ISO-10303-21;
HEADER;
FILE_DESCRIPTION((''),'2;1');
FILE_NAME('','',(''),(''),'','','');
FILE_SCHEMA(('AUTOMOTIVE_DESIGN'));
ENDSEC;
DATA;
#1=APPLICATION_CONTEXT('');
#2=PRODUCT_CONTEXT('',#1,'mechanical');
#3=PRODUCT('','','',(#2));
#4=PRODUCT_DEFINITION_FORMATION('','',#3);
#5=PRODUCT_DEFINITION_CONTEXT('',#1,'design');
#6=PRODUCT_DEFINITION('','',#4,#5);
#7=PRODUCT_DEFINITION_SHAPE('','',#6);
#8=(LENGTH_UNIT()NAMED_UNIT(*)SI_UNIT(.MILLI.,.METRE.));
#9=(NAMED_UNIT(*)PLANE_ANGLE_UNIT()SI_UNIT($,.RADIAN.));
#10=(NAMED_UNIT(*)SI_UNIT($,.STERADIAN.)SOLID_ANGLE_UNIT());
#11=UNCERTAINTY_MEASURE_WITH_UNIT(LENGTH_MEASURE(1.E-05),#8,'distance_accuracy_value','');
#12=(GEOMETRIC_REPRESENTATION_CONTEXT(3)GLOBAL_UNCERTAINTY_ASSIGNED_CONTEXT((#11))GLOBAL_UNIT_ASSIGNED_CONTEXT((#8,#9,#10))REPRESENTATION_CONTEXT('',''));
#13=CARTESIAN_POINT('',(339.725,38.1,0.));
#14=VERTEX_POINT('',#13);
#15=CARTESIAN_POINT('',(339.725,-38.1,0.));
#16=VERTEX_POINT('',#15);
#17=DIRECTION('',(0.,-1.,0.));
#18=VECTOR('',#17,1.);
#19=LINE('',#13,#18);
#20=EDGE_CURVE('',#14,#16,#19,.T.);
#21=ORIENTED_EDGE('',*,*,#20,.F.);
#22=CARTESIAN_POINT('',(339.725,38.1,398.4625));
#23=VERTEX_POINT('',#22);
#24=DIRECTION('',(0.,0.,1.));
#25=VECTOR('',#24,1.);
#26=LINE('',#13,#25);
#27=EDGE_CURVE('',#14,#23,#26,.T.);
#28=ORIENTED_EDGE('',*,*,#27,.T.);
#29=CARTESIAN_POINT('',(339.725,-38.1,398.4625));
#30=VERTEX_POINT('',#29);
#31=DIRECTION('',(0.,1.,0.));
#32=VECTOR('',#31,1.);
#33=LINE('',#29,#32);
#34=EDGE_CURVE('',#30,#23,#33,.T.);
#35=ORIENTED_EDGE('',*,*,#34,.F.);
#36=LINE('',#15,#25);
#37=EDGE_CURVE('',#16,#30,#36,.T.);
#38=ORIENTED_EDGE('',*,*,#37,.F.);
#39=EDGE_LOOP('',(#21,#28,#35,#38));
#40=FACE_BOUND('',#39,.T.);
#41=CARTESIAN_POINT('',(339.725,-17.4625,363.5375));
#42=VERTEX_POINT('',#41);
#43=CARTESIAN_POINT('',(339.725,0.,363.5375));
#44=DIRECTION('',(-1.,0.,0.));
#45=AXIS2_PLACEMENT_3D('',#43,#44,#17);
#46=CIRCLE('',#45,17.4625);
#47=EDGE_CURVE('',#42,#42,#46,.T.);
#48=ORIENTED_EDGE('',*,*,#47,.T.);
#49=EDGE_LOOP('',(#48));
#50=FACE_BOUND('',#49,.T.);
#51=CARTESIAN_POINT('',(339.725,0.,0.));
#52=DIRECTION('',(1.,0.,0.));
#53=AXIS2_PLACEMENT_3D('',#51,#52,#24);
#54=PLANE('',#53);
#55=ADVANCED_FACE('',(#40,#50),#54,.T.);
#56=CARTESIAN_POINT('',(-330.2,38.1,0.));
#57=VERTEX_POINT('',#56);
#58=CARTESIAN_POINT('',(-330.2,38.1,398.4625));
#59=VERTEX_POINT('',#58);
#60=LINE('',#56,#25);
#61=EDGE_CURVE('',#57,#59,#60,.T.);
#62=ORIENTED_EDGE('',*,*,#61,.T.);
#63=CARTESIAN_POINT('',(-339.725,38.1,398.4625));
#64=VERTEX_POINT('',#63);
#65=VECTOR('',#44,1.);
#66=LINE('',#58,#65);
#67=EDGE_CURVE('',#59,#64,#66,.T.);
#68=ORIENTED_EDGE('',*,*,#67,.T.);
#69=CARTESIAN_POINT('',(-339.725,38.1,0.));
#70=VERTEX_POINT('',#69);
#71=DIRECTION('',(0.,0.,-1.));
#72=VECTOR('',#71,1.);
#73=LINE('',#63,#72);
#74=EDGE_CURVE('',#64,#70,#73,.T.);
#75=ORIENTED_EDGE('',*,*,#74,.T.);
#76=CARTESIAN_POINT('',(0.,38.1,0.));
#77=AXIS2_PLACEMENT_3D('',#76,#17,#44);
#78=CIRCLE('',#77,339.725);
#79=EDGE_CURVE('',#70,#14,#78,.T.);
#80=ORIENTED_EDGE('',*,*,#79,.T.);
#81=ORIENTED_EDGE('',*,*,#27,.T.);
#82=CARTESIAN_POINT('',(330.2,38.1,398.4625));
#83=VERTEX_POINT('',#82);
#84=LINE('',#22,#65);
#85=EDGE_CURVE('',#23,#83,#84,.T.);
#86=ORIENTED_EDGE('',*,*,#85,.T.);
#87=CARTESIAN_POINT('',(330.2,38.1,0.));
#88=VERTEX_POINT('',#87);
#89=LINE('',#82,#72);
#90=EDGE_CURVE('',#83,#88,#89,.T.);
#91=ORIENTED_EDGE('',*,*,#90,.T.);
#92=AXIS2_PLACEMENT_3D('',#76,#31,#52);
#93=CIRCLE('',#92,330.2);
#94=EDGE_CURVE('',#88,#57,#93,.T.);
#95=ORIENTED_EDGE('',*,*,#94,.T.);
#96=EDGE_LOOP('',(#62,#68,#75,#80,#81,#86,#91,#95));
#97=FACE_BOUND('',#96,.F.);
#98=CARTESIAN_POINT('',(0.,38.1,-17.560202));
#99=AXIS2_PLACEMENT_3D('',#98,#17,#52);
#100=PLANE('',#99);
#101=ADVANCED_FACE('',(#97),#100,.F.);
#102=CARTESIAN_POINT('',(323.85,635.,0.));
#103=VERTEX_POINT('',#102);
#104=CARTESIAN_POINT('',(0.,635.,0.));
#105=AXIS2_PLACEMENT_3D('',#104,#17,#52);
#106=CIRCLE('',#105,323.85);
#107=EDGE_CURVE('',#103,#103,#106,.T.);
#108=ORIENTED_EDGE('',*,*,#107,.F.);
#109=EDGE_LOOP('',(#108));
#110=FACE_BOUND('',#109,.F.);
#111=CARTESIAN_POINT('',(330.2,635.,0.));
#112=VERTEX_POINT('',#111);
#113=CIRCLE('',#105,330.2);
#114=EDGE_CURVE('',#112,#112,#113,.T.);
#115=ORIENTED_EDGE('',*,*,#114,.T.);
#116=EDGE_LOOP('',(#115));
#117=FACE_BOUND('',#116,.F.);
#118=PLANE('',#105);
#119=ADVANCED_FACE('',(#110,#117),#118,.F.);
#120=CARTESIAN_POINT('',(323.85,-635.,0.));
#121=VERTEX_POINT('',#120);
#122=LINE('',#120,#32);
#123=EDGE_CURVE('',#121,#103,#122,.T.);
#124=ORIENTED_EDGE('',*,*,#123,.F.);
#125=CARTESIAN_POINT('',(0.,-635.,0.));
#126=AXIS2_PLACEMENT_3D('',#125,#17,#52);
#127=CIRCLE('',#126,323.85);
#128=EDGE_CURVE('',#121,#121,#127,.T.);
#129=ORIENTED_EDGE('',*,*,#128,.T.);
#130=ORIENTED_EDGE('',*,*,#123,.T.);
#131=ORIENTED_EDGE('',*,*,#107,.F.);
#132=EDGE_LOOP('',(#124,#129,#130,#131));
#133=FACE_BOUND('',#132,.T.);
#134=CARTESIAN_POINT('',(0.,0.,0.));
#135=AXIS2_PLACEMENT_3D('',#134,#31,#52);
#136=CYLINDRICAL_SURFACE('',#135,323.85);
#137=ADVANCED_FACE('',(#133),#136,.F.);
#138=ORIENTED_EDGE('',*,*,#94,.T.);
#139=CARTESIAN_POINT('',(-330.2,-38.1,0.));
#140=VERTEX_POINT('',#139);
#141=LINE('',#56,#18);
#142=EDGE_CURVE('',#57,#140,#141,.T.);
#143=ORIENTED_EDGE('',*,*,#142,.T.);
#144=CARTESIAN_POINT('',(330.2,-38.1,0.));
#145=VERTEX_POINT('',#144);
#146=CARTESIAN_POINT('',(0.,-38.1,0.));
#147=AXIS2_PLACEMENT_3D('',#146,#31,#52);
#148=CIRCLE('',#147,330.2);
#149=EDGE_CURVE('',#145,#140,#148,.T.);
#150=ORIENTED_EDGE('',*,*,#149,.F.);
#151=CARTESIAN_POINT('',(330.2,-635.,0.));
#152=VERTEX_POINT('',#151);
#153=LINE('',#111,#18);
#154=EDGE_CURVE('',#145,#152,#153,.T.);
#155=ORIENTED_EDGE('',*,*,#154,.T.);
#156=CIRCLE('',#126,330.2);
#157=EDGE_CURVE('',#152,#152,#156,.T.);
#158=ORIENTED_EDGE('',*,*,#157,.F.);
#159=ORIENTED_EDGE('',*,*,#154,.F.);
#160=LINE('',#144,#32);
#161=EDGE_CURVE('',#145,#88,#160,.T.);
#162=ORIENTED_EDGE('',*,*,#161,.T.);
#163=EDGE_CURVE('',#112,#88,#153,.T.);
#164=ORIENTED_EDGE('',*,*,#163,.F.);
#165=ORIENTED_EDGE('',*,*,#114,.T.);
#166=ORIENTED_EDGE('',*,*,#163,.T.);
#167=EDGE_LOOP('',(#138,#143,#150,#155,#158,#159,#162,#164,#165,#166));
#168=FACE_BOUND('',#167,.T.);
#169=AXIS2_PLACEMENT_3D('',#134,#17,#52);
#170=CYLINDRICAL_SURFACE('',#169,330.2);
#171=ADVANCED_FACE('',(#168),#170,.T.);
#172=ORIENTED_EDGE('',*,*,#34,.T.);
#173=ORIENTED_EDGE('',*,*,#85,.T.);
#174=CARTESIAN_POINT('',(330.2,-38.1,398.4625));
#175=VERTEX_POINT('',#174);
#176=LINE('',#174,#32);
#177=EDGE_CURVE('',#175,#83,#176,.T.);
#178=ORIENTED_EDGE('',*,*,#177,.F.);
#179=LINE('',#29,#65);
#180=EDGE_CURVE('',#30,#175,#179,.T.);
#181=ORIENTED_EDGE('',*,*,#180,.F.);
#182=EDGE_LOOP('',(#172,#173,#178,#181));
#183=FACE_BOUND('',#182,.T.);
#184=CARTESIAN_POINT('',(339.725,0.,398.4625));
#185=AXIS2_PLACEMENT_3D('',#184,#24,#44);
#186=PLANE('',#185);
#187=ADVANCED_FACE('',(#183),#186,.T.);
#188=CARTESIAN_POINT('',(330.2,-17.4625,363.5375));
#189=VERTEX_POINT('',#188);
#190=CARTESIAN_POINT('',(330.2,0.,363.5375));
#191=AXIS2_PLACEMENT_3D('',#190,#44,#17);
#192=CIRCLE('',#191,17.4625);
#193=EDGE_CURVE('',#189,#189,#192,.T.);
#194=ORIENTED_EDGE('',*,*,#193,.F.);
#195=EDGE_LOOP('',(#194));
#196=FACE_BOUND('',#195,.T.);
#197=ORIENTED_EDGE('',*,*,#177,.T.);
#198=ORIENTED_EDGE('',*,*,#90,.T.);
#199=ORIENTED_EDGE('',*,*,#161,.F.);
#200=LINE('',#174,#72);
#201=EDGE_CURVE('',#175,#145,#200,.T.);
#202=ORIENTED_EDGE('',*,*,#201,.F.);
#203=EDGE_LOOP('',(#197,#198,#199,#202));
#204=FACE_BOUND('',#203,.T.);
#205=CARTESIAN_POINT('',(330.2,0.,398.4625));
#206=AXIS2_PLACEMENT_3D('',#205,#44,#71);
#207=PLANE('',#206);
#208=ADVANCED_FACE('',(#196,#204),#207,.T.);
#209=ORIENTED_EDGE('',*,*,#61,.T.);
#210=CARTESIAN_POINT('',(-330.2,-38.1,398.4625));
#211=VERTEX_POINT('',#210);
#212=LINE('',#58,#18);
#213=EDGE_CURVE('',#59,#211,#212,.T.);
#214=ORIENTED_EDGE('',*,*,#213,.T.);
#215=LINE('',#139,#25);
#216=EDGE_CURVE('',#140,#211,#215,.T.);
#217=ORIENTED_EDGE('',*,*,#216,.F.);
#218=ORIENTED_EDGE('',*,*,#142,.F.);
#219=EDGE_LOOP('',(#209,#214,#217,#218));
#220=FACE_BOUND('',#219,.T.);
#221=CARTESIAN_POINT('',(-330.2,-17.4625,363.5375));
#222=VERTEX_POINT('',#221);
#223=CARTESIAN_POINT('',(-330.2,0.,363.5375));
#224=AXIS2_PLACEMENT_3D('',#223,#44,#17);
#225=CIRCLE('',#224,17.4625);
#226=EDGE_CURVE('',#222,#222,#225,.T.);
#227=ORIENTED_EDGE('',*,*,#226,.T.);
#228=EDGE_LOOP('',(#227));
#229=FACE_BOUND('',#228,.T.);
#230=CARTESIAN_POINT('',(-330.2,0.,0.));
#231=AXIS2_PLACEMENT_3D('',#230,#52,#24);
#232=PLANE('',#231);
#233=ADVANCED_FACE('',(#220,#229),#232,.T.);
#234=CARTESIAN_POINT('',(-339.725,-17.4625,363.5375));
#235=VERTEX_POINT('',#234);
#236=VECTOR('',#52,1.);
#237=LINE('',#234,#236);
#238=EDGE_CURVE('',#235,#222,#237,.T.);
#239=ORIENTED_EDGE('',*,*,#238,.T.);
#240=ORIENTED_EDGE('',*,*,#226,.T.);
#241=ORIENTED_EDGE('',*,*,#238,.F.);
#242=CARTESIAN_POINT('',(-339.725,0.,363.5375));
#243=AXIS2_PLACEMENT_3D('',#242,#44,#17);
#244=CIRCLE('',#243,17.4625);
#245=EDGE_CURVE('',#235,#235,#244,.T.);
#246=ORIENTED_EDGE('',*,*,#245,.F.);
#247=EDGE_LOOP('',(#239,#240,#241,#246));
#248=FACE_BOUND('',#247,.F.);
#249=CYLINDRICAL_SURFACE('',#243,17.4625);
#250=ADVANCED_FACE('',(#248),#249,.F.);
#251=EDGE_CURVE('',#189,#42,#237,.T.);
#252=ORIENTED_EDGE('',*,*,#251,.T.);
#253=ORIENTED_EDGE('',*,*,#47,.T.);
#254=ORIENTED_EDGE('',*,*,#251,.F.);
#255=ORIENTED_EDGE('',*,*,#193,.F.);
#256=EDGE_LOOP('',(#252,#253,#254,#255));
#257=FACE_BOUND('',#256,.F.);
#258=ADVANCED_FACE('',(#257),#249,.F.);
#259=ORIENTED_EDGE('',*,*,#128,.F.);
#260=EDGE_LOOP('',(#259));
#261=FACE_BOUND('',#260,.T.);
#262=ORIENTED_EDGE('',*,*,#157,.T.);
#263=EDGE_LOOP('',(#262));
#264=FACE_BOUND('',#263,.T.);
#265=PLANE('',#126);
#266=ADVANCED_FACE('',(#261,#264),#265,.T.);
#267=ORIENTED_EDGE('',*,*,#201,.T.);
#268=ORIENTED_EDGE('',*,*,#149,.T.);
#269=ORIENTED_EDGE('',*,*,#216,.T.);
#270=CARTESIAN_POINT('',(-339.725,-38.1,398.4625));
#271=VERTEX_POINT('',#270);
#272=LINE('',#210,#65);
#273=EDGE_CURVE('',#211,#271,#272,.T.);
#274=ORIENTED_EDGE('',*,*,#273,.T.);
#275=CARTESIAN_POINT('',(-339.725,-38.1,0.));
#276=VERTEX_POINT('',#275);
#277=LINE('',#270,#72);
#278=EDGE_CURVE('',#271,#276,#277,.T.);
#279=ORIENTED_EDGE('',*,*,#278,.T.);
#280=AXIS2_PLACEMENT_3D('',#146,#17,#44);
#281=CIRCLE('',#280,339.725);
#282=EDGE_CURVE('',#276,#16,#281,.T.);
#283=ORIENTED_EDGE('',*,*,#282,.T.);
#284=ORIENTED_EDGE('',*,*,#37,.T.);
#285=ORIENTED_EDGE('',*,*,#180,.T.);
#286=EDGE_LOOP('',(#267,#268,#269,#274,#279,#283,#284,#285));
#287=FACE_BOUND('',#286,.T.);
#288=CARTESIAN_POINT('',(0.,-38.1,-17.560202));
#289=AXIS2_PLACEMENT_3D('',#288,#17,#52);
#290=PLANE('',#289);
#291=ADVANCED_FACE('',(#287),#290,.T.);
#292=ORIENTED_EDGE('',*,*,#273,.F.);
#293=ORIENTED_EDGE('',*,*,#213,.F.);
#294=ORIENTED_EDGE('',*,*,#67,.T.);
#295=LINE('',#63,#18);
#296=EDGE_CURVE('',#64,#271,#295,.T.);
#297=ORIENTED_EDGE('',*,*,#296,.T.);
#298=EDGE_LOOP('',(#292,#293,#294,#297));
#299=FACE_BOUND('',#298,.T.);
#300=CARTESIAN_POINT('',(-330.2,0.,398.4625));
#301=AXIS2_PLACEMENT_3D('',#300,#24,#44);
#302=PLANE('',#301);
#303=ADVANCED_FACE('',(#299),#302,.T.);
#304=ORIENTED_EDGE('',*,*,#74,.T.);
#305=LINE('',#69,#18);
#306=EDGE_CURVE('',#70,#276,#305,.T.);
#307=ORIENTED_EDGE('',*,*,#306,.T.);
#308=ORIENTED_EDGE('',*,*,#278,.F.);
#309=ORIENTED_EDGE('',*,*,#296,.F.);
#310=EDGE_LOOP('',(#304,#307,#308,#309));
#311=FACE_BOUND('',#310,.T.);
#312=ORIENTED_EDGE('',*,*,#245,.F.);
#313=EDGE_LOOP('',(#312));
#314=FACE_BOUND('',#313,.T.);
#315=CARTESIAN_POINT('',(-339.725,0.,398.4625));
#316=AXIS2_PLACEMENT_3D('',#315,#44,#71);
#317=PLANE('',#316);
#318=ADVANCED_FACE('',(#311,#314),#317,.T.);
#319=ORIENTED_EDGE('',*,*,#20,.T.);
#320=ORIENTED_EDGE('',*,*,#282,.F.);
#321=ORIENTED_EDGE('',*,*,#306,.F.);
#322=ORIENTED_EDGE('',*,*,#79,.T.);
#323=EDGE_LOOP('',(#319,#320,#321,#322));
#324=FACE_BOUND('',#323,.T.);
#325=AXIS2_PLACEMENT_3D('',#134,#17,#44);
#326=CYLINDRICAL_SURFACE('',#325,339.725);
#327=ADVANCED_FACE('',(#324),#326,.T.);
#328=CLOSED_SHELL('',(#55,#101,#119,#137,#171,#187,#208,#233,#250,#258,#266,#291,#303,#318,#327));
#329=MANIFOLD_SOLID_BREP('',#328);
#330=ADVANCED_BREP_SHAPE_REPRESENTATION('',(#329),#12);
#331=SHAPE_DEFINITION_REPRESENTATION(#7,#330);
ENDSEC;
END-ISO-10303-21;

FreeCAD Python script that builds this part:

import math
import FreeCAD as App
import Part
import Sketcher
Q = App.Units.Quantity

doc = App.newDocument("Part")
body = doc.addObject("PartDesign::Body", "Body")

# Sketch on XZ plane
sketch1 = body.newObject("Sketcher::SketchObject", "Sketch")
sketch1.AttachmentSupport = (doc.getObject("XZ_Plane"), [""])
sketch1.MapMode = "FlatFace"
sketch1.addGeometry([
    Part.ArcOfCircle(Part.Circle(App.Vector(0, 0, 0), App.Vector(0, 0, 1), 330), math.radians(180), math.radians(360)),  # 0
    Part.LineSegment(App.Vector(-330, 0, 0), App.Vector(-330, 398, 0)),  # 1
    Part.LineSegment(App.Vector(-330, 398, 0), App.Vector(-340, 398, 0)),  # 2
    Part.LineSegment(App.Vector(-340, 398, 0), App.Vector(-340, 0, 0)),  # 3
    Part.ArcOfCircle(Part.Circle(App.Vector(0, 0, 0), App.Vector(0, 0, 1), 340), math.radians(180), math.radians(360)),  # 4
    Part.LineSegment(App.Vector(340, 0, 0), App.Vector(340, 398, 0)),  # 5
    Part.LineSegment(App.Vector(340, 398, 0), App.Vector(330, 398, 0)),  # 6
    Part.LineSegment(App.Vector(330, 398, 0), App.Vector(330, 0, 0)),  # 7
], False)
sketch1.addConstraint([
    Sketcher.Constraint("Tangent", 0, 1, 1, 1),
    Sketcher.Constraint("Coincident", 1, 2, 2, 1),
    Sketcher.Constraint("Coincident", 2, 2, 3, 1),
    Sketcher.Constraint("Tangent", 3, 2, 4, 1),
    Sketcher.Constraint("Tangent", 4, 2, 5, 1),
    Sketcher.Constraint("Coincident", 5, 2, 6, 1),
    Sketcher.Constraint("Coincident", 6, 2, 7, 1),
    Sketcher.Constraint("Tangent", 7, 2, 0, 2),
    Sketcher.Constraint("Vertical", 1),
    Sketcher.Constraint("Horizontal", 2),
    Sketcher.Constraint("Vertical", 3),
    Sketcher.Constraint("Vertical", 5),
    Sketcher.Constraint("Horizontal", 6),
    Sketcher.Constraint("Vertical", 7),
    Sketcher.Constraint("Coincident", 0, 3, -1, 1),
    Sketcher.Constraint("Coincident", 4, 3, -1, 1),
    Sketcher.Constraint("Horizontal", 2, 2, 5, 2),
    Sketcher.Constraint("Radius", 0, Q("13 in")),
    Sketcher.Constraint("Radius", 4, Q("13.375 in")),
    Sketcher.Constraint("DistanceY", 1, 1, 1, 2, Q("15.6875 in")),
])
pad1 = body.newObject("PartDesign::Pad", "Pad")
pad1.Profile = sketch1
pad1.Length = Q("3 in")
pad1.Midplane = True

# Sketch on YZ plane
sketch2 = body.newObject("Sketcher::SketchObject", "Sketch001")
sketch2.AttachmentSupport = (doc.getObject("YZ_Plane"), [""])
sketch2.MapMode = "FlatFace"
sketch2.AttachmentOffset = App.Placement(App.Vector(0, 0, -13.375 * 25.4), App.Rotation())
sketch2.addGeometry(Part.Circle(App.Vector(0, 364, 0), App.Vector(0, 0, 1), 17), False)
sketch2.addConstraint([
    Sketcher.Constraint("PointOnObject", 0, 3, -2),
    Sketcher.Constraint("Diameter", 0, Q("1.375 in")),
    Sketcher.Constraint("DistanceY", -1, 1, 0, 3, Q("14.3125 in")),
])
pocket1 = body.newObject("PartDesign::Pocket", "Pocket")
pocket1.Profile = sketch2
pocket1.Type = "ThroughAll"
pocket1.Reversed = True

# Sketch on XZ plane
sketch3 = body.newObject("Sketcher::SketchObject", "Sketch002")
sketch3.AttachmentSupport = (doc.getObject("XZ_Plane"), [""])
sketch3.MapMode = "FlatFace"
sketch3.addGeometry([
    Part.Circle(App.Vector(0, 0, 0), App.Vector(0, 0, 1), 330),
    Part.Circle(App.Vector(0, 0, 0), App.Vector(0, 0, 1), 324),
], False)
sketch3.addConstraint([
    Sketcher.Constraint("Coincident", 0, 3, -1, 1),
    Sketcher.Constraint("Coincident", 1, 3, -1, 1),
    Sketcher.Constraint("Diameter", 0, Q("26 in")),
    Sketcher.Constraint("Diameter", 1, Q("25.5 in")),
])
pad2 = body.newObject("PartDesign::Pad", "Pad001")
pad2.Profile = sketch3
pad2.Length = Q("50 in")
pad2.Midplane = True

doc.recompute()
